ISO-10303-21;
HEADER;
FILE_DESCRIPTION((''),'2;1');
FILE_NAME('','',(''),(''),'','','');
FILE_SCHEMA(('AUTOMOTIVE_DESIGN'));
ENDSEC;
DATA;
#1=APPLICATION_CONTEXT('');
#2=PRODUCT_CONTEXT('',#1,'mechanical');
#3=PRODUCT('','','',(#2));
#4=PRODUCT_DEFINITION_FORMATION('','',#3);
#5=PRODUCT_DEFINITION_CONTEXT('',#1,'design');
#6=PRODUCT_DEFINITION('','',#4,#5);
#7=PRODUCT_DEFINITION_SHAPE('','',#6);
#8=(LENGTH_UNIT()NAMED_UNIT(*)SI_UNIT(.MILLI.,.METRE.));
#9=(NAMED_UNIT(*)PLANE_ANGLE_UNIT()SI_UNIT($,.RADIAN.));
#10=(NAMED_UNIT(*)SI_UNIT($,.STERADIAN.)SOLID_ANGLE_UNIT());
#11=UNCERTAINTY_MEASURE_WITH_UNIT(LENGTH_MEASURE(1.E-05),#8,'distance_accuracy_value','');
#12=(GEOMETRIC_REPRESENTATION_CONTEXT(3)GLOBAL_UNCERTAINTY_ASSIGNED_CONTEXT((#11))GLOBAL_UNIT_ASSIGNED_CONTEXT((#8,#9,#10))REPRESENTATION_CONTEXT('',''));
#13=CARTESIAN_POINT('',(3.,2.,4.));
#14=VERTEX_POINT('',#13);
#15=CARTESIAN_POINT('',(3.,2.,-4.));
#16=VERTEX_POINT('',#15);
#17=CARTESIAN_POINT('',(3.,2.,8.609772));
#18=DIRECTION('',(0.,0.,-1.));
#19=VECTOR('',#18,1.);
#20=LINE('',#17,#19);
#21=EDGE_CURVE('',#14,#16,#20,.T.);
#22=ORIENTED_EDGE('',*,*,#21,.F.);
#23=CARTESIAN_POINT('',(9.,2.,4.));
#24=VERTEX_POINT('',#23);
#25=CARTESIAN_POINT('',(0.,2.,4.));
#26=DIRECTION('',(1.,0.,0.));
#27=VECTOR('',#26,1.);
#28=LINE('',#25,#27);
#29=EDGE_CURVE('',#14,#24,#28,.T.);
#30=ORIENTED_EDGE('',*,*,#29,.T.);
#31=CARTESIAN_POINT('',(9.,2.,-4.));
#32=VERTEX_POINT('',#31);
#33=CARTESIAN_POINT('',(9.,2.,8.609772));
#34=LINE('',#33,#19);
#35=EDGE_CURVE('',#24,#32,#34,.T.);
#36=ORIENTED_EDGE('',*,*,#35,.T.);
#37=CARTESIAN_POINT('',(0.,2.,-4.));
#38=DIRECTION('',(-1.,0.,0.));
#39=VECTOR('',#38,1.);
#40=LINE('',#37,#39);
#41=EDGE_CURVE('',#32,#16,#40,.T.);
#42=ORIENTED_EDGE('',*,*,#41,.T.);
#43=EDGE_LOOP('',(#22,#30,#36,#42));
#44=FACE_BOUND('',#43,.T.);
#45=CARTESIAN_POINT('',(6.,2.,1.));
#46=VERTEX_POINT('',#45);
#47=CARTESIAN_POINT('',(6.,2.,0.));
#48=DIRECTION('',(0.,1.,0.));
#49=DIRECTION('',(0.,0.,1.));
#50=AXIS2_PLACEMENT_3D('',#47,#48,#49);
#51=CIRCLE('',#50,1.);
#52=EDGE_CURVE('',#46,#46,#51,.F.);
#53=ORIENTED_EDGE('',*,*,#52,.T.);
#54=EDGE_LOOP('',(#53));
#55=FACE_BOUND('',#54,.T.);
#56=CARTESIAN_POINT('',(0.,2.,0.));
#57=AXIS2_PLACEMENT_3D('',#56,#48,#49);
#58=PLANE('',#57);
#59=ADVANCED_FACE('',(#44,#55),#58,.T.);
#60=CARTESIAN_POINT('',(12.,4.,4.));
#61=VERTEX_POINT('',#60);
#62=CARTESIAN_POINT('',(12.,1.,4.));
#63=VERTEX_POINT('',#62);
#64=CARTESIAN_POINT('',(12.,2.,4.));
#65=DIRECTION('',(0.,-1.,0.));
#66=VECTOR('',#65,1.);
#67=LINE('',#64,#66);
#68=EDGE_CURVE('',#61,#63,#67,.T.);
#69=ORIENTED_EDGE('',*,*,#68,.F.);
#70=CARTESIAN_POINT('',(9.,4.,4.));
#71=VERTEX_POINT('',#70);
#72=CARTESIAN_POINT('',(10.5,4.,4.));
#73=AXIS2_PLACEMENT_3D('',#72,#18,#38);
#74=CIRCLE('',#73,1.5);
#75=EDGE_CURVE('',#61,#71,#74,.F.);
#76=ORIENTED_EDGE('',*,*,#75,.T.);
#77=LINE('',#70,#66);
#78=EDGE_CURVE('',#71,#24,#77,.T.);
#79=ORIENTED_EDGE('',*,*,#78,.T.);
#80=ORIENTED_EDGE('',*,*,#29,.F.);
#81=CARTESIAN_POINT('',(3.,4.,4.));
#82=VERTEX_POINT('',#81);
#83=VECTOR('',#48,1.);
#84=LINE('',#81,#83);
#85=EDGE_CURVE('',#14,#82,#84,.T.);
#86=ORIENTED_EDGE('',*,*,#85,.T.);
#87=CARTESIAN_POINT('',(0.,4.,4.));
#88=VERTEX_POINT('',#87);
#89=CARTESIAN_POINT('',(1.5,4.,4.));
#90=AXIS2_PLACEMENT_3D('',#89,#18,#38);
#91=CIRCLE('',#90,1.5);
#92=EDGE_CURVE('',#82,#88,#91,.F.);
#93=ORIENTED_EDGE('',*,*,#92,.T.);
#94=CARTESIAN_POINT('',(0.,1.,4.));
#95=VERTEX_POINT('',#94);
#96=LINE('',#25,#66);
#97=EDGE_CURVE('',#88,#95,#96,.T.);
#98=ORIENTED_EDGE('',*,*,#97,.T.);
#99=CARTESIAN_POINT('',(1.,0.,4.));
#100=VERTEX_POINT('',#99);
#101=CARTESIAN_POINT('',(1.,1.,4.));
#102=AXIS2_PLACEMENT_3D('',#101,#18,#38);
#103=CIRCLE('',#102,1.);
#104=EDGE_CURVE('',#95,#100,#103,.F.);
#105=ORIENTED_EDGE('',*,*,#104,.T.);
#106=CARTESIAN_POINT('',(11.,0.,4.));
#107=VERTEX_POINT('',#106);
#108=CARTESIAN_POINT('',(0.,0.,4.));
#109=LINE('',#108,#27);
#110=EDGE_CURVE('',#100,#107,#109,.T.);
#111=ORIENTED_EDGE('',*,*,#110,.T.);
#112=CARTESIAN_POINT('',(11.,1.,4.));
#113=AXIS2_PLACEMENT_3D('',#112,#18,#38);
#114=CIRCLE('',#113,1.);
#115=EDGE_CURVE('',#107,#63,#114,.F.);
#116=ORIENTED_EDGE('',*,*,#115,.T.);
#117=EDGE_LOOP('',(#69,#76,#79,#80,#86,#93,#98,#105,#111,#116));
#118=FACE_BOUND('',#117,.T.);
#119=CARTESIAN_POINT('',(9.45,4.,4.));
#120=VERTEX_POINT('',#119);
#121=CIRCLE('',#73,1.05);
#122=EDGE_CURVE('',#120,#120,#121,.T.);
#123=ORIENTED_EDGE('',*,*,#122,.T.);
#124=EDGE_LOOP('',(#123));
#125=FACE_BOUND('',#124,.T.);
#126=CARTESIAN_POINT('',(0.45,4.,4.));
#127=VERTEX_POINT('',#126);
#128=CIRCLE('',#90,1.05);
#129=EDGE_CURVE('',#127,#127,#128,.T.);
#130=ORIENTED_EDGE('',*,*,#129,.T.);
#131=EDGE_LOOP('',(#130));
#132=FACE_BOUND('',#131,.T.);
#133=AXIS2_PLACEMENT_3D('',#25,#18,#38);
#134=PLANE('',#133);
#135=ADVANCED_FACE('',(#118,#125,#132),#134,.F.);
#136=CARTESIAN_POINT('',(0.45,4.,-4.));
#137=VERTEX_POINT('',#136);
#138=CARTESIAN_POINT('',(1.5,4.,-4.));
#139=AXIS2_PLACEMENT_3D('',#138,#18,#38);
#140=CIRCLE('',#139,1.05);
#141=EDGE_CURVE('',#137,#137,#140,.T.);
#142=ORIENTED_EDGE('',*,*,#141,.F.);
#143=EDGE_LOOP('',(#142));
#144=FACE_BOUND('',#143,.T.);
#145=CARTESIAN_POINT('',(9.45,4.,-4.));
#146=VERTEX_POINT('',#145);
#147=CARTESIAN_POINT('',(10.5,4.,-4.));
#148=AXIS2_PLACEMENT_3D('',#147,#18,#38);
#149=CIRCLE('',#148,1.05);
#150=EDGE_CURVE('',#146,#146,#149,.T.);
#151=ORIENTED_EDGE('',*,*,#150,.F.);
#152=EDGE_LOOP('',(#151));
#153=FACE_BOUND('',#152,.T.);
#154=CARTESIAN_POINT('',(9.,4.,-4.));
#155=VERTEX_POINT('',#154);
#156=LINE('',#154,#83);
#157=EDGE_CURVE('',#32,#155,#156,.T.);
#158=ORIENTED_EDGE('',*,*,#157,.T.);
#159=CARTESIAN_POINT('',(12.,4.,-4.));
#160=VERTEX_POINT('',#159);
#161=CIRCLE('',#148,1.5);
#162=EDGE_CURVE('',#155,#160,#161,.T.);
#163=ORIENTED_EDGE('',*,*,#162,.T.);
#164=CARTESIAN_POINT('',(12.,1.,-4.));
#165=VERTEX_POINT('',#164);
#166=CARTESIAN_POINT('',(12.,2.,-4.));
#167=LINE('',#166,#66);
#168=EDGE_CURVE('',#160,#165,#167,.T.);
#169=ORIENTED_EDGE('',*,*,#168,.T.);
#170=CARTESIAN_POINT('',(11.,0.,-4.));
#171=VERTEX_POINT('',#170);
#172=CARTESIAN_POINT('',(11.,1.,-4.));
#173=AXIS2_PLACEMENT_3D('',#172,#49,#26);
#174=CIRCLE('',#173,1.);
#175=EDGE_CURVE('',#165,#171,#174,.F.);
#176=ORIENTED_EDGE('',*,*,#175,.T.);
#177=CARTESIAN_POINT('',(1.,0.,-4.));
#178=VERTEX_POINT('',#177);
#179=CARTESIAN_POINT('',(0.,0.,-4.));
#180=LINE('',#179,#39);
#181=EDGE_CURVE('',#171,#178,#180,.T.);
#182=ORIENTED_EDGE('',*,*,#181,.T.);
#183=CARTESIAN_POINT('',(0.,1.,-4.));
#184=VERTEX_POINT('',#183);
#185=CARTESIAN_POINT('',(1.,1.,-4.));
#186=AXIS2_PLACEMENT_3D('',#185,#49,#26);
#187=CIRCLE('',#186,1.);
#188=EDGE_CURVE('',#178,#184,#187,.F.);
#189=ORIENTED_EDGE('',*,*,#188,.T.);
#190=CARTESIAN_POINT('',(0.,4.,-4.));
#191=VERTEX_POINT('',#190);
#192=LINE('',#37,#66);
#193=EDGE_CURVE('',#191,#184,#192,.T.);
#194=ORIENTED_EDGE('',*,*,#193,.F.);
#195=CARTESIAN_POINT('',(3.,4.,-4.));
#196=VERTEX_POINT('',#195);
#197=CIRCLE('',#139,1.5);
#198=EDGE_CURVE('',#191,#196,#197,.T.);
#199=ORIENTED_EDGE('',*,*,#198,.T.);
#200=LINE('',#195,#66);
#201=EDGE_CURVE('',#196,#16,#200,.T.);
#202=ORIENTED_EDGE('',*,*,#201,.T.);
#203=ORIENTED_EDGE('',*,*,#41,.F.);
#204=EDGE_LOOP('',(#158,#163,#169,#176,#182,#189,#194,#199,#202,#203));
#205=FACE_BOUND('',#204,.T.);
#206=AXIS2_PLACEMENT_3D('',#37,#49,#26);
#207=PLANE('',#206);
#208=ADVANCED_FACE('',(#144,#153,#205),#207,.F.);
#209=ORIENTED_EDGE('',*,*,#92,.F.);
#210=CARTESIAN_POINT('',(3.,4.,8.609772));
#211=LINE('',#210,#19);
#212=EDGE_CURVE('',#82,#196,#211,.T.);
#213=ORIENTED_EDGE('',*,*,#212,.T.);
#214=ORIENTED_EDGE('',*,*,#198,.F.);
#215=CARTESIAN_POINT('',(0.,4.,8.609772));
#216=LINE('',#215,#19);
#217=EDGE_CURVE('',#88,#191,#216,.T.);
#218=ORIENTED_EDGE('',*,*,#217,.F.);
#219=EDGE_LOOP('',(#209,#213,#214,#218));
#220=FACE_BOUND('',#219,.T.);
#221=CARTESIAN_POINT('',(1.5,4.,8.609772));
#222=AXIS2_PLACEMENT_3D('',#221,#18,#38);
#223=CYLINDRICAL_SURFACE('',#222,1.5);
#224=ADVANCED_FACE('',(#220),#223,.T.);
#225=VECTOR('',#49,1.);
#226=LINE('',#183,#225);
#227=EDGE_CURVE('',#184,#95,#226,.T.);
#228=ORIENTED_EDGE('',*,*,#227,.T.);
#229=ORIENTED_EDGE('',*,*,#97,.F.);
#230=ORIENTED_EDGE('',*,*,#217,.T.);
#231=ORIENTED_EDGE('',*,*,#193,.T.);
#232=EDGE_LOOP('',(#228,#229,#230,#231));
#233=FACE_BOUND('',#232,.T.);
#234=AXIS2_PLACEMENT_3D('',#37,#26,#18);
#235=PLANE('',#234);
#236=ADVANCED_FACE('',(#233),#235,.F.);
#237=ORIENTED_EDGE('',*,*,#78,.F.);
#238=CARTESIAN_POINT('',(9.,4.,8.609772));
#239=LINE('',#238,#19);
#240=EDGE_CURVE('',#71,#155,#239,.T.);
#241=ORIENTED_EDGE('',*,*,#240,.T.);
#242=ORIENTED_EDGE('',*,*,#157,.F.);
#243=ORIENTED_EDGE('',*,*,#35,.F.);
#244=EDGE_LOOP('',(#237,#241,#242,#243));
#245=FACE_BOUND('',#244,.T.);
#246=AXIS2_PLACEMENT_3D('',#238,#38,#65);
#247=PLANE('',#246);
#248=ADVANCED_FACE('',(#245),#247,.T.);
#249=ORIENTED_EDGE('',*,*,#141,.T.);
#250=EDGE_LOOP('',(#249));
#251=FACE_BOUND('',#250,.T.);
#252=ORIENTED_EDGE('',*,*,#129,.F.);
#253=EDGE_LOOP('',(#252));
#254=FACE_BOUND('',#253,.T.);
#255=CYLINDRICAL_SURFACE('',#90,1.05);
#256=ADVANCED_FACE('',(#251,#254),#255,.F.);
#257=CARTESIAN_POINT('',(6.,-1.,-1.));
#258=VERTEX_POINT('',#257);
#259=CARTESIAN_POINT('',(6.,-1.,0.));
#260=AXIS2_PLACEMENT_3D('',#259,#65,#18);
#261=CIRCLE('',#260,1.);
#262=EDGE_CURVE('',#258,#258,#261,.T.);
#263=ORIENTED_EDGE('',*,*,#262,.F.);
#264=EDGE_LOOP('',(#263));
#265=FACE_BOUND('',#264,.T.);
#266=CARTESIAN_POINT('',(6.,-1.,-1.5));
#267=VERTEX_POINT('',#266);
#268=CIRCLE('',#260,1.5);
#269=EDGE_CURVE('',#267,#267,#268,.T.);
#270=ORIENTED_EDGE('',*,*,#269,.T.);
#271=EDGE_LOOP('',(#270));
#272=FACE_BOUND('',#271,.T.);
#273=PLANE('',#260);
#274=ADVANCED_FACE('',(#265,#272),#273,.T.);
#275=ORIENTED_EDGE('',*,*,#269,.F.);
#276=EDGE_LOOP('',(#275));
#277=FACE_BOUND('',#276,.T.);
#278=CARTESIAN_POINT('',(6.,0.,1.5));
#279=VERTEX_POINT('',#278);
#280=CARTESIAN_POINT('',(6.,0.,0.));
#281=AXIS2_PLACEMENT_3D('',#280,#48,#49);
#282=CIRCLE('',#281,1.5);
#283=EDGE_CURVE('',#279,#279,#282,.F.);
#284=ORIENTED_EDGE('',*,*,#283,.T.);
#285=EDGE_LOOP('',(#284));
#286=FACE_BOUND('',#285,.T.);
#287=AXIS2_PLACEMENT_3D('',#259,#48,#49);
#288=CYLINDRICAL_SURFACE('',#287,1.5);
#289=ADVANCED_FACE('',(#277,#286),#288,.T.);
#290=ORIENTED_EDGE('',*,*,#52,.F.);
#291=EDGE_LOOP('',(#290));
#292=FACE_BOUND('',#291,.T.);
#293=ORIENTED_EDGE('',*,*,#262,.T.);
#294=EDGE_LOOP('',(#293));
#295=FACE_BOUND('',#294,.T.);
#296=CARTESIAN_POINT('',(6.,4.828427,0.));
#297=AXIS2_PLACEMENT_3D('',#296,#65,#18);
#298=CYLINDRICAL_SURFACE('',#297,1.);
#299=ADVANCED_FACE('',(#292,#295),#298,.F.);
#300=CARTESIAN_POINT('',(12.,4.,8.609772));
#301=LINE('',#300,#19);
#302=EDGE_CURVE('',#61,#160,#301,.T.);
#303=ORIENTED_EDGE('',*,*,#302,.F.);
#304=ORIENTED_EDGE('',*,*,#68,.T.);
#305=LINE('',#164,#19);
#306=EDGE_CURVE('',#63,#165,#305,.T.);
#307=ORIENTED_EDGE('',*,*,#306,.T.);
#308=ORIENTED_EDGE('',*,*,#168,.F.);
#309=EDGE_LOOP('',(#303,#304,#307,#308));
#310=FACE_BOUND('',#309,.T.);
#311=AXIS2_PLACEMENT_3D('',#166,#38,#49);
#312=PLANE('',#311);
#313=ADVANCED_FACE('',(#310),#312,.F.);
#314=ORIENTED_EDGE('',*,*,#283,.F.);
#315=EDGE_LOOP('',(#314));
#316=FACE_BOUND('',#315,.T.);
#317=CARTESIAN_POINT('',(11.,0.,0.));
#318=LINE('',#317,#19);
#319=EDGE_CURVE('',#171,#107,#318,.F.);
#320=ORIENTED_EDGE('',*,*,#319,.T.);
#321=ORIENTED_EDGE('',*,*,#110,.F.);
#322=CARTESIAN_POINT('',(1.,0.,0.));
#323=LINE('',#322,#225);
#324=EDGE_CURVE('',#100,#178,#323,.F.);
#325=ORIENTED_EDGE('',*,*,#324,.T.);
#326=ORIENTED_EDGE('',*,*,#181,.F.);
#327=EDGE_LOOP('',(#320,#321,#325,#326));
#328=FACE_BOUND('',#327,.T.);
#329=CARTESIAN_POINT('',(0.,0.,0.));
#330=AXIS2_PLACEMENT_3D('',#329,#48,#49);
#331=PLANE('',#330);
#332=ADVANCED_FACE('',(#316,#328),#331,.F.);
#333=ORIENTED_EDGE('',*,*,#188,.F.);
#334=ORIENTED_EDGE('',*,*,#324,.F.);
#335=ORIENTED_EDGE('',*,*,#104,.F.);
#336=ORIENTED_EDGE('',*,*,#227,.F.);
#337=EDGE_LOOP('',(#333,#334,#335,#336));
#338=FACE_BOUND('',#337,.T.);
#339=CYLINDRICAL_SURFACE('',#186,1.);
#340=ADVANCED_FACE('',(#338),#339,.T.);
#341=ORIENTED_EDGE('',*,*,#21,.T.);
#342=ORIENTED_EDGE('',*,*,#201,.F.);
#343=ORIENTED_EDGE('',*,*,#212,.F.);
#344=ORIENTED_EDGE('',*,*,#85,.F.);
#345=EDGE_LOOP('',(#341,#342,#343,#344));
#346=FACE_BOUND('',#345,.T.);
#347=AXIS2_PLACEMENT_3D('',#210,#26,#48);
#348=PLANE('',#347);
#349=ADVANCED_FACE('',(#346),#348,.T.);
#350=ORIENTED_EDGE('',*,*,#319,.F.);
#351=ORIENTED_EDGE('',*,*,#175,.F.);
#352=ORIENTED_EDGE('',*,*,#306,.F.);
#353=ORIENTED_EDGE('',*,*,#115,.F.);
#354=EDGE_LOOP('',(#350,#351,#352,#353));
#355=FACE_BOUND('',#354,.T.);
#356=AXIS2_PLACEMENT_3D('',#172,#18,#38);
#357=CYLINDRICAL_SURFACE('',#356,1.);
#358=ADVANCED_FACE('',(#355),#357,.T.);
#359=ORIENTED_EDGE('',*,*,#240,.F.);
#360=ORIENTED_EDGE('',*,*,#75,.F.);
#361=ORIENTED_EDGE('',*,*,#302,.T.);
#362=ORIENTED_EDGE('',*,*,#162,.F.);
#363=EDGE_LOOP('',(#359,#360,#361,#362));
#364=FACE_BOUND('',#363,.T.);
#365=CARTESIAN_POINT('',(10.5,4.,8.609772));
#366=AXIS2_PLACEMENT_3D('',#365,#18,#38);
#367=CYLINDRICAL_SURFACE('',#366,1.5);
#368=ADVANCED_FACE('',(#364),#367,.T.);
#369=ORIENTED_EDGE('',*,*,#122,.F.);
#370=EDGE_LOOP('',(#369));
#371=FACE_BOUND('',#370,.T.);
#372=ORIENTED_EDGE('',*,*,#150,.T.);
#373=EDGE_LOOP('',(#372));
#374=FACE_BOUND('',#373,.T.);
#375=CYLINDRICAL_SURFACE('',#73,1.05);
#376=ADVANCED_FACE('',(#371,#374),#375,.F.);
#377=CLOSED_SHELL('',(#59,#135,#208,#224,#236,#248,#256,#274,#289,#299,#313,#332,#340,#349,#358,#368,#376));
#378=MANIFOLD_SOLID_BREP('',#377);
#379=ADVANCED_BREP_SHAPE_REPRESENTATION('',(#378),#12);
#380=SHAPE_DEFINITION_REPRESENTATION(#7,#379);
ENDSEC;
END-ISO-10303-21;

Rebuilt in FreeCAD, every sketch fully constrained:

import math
import FreeCAD as App
import Part
import Sketcher

V = App.Vector


def edges_at(feature, points):
    """Names of the edges that pass closest to the given points."""
    edges = feature.Shape.Edges
    near = lambda p: min(range(len(edges)), key=lambda i: edges[i].distToShape(Part.Vertex(*p))[0])
    return sorted({f"Edge{near(p) + 1}" for p in points})


def add_polygon(sketch, points):
    """Adds a closed chain of lines whose ends are joined by coincident constraints."""
    first, n = sketch.GeometryCount, len(points)
    for a, b in zip(points, points[1:] + points[:1]):
        sketch.addGeometry(Part.LineSegment(App.Vector(*a, 0), App.Vector(*b, 0)), False)
    for i in range(n):
        sketch.addConstraint(Sketcher.Constraint("Coincident", first + i, 2, first + (i + 1) % n, 1))

doc = App.newDocument("Part")
params = doc.addObject("Spreadsheet::Sheet", "Params")
for row, (alias, value) in enumerate([
    ("sketch1_width", "12 mm"),
    ("sketch1_height", "8 mm"),
    ("pad1_length", "2 mm"),
    ("sketch2_radius", "1.5 mm"),
    ("sketch2_height", "2 mm"),
    ("pad2_length", "8 mm"),
    ("sketch3_diameter", "2.1 mm"),
    ("fillet_radius", "1 mm"),
    ("sketch4_diameter", "2 mm"),
    ("pocket2_length", "2 mm"),
    ("sketch5_diameter", "3 mm"),
    ("sketch5_diameter2", "2 mm"),
    ("pad3_length", "1 mm"),
], start=1):
    params.set(f"A{row}", alias)
    params.set(f"B{row}", "=" + value)
    params.setAlias(f"B{row}", alias)

body = doc.addObject("PartDesign::Body", "Body")

sketch1 = body.newObject("Sketcher::SketchObject", "Sketch")
sketch1.AttachmentSupport = (doc.getObject("XZ_Plane"), [""])
sketch1.MapMode = "FlatFace"
add_polygon(sketch1, [(0, -4), (0, 4), (12, 4), (12, -4)])
sketch1.addConstraint(Sketcher.Constraint("Vertical", 0))
sketch1.addConstraint(Sketcher.Constraint("Horizontal", 1))
sketch1.addConstraint(Sketcher.Constraint("Vertical", 2))
sketch1.addConstraint(Sketcher.Constraint("Horizontal", 3))
sketch1.addConstraint(Sketcher.Constraint("Symmetric", 0, 2, 3, 2, -1, 1))
sketch1.addConstraint(Sketcher.Constraint("DistanceX", 1, 1, 1, 2, 12.0))
sketch1.addConstraint(Sketcher.Constraint("DistanceY", 0, 1, 0, 2, 8.0))
sketch1.setExpression("Constraints[9]", "Params.sketch1_width")
sketch1.setExpression("Constraints[10]", "Params.sketch1_height")
pad1 = body.newObject("PartDesign::Pad", "Pad")
pad1.Profile = sketch1
pad1.setExpression("Length", "Params.pad1_length")
pad1.Reversed = True

sketch2 = body.newObject("Sketcher::SketchObject", "Sketch001")
sketch2.AttachmentSupport = (doc.getObject("XY_Plane"), [""])
sketch2.MapMode = "FlatFace"
sketch2.AttachmentOffset = App.Placement(V(0, 0, -4), App.Rotation())
sketch2.addGeometry(Part.LineSegment(V(12, 4, 0), V(12, 2, 0)), False)
sketch2.addGeometry(Part.LineSegment(V(12, 2, 0), V(9, 2, 0)), False)
sketch2.addGeometry(Part.LineSegment(V(9, 2, 0), V(9, 4, 0)), False)
sketch2.addGeometry(Part.ArcOfCircle(Part.Circle(V(10.5, 4, 0), V(0, 0, 1), 1.5), math.radians(0), math.radians(180)), False)
sketch2.addGeometry(Part.LineSegment(V(3, 2, 0), V(0, 2, 0)), False)
sketch2.addGeometry(Part.LineSegment(V(0, 2, 0), V(0, 4, 0)), False)
sketch2.addGeometry(Part.ArcOfCircle(Part.Circle(V(1.5, 4, 0), V(0, 0, 1), 1.5), math.radians(0), math.radians(180)), False)
sketch2.addGeometry(Part.LineSegment(V(3, 4, 0), V(3, 2, 0)), False)
sketch2.addConstraint(Sketcher.Constraint("Coincident", 0, 2, 1, 1))
sketch2.addConstraint(Sketcher.Constraint("Coincident", 1, 2, 2, 1))
sketch2.addConstraint(Sketcher.Constraint("Tangent", 2, 2, 3, 2))
sketch2.addConstraint(Sketcher.Constraint("Tangent", 3, 1, 0, 1))
sketch2.addConstraint(Sketcher.Constraint("Coincident", 4, 2, 5, 1))
sketch2.addConstraint(Sketcher.Constraint("Tangent", 5, 2, 6, 2))
sketch2.addConstraint(Sketcher.Constraint("Tangent", 6, 1, 7, 1))
sketch2.addConstraint(Sketcher.Constraint("Coincident", 7, 2, 4, 1))
sketch2.addConstraint(Sketcher.Constraint("Vertical", 0))
sketch2.addConstraint(Sketcher.Constraint("Horizontal", 1))
sketch2.addConstraint(Sketcher.Constraint("Vertical", 2))
sketch2.addConstraint(Sketcher.Constraint("Horizontal", 4))
sketch2.addConstraint(Sketcher.Constraint("Vertical", 5))
sketch2.addConstraint(Sketcher.Constraint("Vertical", 7))
sketch2.addConstraint(Sketcher.Constraint("Equal", 3, 6))
sketch2.addConstraint(Sketcher.Constraint("PointOnObject", 4, 2, -2))
sketch2.addConstraint(Sketcher.Constraint("Horizontal", 3, 3, 6, 3))
sketch2.addConstraint(Sketcher.Constraint("Horizontal", 1, 2, 4, 2))
sketch2.addConstraint(Sketcher.Constraint("Radius", 3, 1.5))
sketch2.addConstraint(Sketcher.Constraint("DistanceY", 0, 2, 0, 1, 2.0))
sketch2.addConstraint(Sketcher.Constraint("DistanceY", -1, 1, 3, 3, 4.0))
sketch2.addConstraint(Sketcher.Constraint("DistanceX", -1, 1, 0, 2, 12.0))
sketch2.setExpression("Constraints[18]", "Params.sketch2_radius")
sketch2.setExpression("Constraints[19]", "Params.sketch2_height")
pad2 = body.newObject("PartDesign::Pad", "Pad001")
pad2.Profile = sketch2
pad2.setExpression("Length", "Params.pad2_length")

sketch3 = body.newObject("Sketcher::SketchObject", "Sketch002")
sketch3.AttachmentSupport = (doc.getObject("XY_Plane"), [""])
sketch3.MapMode = "FlatFace"
sketch3.AttachmentOffset = App.Placement(V(0, 0, -4), App.Rotation())
sketch3.addGeometry(Part.Circle(V(1.5, 4, 0), V(0, 0, 1), 1.1), False)
sketch3.addGeometry(Part.Circle(V(10.5, 4, 0), V(0, 0, 1), 1.1), False)
sketch3.addConstraint(Sketcher.Constraint("Equal", 0, 1))
sketch3.addConstraint(Sketcher.Constraint("Horizontal", 0, 3, 1, 3))
sketch3.addConstraint(Sketcher.Constraint("Diameter", 0, 2.1))
sketch3.addConstraint(Sketcher.Constraint("DistanceY", -1, 1, 0, 3, 4.0))
sketch3.addConstraint(Sketcher.Constraint("DistanceX", 0, 3, 1, 3, 9.0))
sketch3.addConstraint(Sketcher.Constraint("DistanceX", -1, 1, 0, 3, 1.5))
sketch3.setExpression("Constraints[2]", "Params.sketch3_diameter")
pocket1 = body.newObject("PartDesign::Pocket", "Pocket")
pocket1.Profile = sketch3
pocket1.Type = "ThroughAll"
pocket1.Reversed = True
doc.recompute()

fillet = body.newObject("PartDesign::Fillet", "Fillet")
fillet.Base = (pocket1, edges_at(pocket1, [(12, 0, 0), (0, 0, 0)]))
fillet.setExpression("Radius", "Params.fillet_radius")

sketch4 = body.newObject("Sketcher::SketchObject", "Sketch003")
sketch4.AttachmentSupport = (doc.getObject("XZ_Plane"), [""])
sketch4.MapMode = "FlatFace"
sketch4.addGeometry(Part.Circle(V(6, 0, 0), V(0, 0, 1), 1), False)
sketch4.addConstraint(Sketcher.Constraint("PointOnObject", 0, 3, -1))
sketch4.addConstraint(Sketcher.Constraint("Diameter", 0, 2.0))
sketch4.addConstraint(Sketcher.Constraint("DistanceX", -1, 1, 0, 3, 6.0))
sketch4.setExpression("Constraints[1]", "Params.sketch4_diameter")
pocket2 = body.newObject("PartDesign::Pocket", "Pocket001")
pocket2.Profile = sketch4
pocket2.setExpression("Length", "Params.pocket2_length")

sketch5 = body.newObject("Sketcher::SketchObject", "Sketch004")
sketch5.AttachmentSupport = (doc.getObject("XZ_Plane"), [""])
sketch5.MapMode = "FlatFace"
sketch5.AttachmentOffset = App.Placement(V(0, 0, 1), App.Rotation())
sketch5.addGeometry(Part.Circle(V(6, 0, 0), V(0, 0, 1), 1.5), False)
sketch5.addGeometry(Part.Circle(V(6, 0, 0), V(0, 0, 1), 1), False)
sketch5.addConstraint(Sketcher.Constraint("Coincident", 1, 3, 0, 3))
sketch5.addConstraint(Sketcher.Constraint("PointOnObject", 0, 3, -1))
sketch5.addConstraint(Sketcher.Constraint("Diameter", 0, 3.0))
sketch5.addConstraint(Sketcher.Constraint("Diameter", 1, 2.0))
sketch5.addConstraint(Sketcher.Constraint("DistanceX", -1, 1, 0, 3, 6.0))
sketch5.setExpression("Constraints[2]", "Params.sketch5_diameter")
sketch5.setExpression("Constraints[3]", "Params.sketch5_diameter2")
pad3 = body.newObject("PartDesign::Pad", "Pad002")
pad3.Profile = sketch5
pad3.setExpression("Length", "Params.pad3_length")
pad3.Reversed = True

doc.recompute()
